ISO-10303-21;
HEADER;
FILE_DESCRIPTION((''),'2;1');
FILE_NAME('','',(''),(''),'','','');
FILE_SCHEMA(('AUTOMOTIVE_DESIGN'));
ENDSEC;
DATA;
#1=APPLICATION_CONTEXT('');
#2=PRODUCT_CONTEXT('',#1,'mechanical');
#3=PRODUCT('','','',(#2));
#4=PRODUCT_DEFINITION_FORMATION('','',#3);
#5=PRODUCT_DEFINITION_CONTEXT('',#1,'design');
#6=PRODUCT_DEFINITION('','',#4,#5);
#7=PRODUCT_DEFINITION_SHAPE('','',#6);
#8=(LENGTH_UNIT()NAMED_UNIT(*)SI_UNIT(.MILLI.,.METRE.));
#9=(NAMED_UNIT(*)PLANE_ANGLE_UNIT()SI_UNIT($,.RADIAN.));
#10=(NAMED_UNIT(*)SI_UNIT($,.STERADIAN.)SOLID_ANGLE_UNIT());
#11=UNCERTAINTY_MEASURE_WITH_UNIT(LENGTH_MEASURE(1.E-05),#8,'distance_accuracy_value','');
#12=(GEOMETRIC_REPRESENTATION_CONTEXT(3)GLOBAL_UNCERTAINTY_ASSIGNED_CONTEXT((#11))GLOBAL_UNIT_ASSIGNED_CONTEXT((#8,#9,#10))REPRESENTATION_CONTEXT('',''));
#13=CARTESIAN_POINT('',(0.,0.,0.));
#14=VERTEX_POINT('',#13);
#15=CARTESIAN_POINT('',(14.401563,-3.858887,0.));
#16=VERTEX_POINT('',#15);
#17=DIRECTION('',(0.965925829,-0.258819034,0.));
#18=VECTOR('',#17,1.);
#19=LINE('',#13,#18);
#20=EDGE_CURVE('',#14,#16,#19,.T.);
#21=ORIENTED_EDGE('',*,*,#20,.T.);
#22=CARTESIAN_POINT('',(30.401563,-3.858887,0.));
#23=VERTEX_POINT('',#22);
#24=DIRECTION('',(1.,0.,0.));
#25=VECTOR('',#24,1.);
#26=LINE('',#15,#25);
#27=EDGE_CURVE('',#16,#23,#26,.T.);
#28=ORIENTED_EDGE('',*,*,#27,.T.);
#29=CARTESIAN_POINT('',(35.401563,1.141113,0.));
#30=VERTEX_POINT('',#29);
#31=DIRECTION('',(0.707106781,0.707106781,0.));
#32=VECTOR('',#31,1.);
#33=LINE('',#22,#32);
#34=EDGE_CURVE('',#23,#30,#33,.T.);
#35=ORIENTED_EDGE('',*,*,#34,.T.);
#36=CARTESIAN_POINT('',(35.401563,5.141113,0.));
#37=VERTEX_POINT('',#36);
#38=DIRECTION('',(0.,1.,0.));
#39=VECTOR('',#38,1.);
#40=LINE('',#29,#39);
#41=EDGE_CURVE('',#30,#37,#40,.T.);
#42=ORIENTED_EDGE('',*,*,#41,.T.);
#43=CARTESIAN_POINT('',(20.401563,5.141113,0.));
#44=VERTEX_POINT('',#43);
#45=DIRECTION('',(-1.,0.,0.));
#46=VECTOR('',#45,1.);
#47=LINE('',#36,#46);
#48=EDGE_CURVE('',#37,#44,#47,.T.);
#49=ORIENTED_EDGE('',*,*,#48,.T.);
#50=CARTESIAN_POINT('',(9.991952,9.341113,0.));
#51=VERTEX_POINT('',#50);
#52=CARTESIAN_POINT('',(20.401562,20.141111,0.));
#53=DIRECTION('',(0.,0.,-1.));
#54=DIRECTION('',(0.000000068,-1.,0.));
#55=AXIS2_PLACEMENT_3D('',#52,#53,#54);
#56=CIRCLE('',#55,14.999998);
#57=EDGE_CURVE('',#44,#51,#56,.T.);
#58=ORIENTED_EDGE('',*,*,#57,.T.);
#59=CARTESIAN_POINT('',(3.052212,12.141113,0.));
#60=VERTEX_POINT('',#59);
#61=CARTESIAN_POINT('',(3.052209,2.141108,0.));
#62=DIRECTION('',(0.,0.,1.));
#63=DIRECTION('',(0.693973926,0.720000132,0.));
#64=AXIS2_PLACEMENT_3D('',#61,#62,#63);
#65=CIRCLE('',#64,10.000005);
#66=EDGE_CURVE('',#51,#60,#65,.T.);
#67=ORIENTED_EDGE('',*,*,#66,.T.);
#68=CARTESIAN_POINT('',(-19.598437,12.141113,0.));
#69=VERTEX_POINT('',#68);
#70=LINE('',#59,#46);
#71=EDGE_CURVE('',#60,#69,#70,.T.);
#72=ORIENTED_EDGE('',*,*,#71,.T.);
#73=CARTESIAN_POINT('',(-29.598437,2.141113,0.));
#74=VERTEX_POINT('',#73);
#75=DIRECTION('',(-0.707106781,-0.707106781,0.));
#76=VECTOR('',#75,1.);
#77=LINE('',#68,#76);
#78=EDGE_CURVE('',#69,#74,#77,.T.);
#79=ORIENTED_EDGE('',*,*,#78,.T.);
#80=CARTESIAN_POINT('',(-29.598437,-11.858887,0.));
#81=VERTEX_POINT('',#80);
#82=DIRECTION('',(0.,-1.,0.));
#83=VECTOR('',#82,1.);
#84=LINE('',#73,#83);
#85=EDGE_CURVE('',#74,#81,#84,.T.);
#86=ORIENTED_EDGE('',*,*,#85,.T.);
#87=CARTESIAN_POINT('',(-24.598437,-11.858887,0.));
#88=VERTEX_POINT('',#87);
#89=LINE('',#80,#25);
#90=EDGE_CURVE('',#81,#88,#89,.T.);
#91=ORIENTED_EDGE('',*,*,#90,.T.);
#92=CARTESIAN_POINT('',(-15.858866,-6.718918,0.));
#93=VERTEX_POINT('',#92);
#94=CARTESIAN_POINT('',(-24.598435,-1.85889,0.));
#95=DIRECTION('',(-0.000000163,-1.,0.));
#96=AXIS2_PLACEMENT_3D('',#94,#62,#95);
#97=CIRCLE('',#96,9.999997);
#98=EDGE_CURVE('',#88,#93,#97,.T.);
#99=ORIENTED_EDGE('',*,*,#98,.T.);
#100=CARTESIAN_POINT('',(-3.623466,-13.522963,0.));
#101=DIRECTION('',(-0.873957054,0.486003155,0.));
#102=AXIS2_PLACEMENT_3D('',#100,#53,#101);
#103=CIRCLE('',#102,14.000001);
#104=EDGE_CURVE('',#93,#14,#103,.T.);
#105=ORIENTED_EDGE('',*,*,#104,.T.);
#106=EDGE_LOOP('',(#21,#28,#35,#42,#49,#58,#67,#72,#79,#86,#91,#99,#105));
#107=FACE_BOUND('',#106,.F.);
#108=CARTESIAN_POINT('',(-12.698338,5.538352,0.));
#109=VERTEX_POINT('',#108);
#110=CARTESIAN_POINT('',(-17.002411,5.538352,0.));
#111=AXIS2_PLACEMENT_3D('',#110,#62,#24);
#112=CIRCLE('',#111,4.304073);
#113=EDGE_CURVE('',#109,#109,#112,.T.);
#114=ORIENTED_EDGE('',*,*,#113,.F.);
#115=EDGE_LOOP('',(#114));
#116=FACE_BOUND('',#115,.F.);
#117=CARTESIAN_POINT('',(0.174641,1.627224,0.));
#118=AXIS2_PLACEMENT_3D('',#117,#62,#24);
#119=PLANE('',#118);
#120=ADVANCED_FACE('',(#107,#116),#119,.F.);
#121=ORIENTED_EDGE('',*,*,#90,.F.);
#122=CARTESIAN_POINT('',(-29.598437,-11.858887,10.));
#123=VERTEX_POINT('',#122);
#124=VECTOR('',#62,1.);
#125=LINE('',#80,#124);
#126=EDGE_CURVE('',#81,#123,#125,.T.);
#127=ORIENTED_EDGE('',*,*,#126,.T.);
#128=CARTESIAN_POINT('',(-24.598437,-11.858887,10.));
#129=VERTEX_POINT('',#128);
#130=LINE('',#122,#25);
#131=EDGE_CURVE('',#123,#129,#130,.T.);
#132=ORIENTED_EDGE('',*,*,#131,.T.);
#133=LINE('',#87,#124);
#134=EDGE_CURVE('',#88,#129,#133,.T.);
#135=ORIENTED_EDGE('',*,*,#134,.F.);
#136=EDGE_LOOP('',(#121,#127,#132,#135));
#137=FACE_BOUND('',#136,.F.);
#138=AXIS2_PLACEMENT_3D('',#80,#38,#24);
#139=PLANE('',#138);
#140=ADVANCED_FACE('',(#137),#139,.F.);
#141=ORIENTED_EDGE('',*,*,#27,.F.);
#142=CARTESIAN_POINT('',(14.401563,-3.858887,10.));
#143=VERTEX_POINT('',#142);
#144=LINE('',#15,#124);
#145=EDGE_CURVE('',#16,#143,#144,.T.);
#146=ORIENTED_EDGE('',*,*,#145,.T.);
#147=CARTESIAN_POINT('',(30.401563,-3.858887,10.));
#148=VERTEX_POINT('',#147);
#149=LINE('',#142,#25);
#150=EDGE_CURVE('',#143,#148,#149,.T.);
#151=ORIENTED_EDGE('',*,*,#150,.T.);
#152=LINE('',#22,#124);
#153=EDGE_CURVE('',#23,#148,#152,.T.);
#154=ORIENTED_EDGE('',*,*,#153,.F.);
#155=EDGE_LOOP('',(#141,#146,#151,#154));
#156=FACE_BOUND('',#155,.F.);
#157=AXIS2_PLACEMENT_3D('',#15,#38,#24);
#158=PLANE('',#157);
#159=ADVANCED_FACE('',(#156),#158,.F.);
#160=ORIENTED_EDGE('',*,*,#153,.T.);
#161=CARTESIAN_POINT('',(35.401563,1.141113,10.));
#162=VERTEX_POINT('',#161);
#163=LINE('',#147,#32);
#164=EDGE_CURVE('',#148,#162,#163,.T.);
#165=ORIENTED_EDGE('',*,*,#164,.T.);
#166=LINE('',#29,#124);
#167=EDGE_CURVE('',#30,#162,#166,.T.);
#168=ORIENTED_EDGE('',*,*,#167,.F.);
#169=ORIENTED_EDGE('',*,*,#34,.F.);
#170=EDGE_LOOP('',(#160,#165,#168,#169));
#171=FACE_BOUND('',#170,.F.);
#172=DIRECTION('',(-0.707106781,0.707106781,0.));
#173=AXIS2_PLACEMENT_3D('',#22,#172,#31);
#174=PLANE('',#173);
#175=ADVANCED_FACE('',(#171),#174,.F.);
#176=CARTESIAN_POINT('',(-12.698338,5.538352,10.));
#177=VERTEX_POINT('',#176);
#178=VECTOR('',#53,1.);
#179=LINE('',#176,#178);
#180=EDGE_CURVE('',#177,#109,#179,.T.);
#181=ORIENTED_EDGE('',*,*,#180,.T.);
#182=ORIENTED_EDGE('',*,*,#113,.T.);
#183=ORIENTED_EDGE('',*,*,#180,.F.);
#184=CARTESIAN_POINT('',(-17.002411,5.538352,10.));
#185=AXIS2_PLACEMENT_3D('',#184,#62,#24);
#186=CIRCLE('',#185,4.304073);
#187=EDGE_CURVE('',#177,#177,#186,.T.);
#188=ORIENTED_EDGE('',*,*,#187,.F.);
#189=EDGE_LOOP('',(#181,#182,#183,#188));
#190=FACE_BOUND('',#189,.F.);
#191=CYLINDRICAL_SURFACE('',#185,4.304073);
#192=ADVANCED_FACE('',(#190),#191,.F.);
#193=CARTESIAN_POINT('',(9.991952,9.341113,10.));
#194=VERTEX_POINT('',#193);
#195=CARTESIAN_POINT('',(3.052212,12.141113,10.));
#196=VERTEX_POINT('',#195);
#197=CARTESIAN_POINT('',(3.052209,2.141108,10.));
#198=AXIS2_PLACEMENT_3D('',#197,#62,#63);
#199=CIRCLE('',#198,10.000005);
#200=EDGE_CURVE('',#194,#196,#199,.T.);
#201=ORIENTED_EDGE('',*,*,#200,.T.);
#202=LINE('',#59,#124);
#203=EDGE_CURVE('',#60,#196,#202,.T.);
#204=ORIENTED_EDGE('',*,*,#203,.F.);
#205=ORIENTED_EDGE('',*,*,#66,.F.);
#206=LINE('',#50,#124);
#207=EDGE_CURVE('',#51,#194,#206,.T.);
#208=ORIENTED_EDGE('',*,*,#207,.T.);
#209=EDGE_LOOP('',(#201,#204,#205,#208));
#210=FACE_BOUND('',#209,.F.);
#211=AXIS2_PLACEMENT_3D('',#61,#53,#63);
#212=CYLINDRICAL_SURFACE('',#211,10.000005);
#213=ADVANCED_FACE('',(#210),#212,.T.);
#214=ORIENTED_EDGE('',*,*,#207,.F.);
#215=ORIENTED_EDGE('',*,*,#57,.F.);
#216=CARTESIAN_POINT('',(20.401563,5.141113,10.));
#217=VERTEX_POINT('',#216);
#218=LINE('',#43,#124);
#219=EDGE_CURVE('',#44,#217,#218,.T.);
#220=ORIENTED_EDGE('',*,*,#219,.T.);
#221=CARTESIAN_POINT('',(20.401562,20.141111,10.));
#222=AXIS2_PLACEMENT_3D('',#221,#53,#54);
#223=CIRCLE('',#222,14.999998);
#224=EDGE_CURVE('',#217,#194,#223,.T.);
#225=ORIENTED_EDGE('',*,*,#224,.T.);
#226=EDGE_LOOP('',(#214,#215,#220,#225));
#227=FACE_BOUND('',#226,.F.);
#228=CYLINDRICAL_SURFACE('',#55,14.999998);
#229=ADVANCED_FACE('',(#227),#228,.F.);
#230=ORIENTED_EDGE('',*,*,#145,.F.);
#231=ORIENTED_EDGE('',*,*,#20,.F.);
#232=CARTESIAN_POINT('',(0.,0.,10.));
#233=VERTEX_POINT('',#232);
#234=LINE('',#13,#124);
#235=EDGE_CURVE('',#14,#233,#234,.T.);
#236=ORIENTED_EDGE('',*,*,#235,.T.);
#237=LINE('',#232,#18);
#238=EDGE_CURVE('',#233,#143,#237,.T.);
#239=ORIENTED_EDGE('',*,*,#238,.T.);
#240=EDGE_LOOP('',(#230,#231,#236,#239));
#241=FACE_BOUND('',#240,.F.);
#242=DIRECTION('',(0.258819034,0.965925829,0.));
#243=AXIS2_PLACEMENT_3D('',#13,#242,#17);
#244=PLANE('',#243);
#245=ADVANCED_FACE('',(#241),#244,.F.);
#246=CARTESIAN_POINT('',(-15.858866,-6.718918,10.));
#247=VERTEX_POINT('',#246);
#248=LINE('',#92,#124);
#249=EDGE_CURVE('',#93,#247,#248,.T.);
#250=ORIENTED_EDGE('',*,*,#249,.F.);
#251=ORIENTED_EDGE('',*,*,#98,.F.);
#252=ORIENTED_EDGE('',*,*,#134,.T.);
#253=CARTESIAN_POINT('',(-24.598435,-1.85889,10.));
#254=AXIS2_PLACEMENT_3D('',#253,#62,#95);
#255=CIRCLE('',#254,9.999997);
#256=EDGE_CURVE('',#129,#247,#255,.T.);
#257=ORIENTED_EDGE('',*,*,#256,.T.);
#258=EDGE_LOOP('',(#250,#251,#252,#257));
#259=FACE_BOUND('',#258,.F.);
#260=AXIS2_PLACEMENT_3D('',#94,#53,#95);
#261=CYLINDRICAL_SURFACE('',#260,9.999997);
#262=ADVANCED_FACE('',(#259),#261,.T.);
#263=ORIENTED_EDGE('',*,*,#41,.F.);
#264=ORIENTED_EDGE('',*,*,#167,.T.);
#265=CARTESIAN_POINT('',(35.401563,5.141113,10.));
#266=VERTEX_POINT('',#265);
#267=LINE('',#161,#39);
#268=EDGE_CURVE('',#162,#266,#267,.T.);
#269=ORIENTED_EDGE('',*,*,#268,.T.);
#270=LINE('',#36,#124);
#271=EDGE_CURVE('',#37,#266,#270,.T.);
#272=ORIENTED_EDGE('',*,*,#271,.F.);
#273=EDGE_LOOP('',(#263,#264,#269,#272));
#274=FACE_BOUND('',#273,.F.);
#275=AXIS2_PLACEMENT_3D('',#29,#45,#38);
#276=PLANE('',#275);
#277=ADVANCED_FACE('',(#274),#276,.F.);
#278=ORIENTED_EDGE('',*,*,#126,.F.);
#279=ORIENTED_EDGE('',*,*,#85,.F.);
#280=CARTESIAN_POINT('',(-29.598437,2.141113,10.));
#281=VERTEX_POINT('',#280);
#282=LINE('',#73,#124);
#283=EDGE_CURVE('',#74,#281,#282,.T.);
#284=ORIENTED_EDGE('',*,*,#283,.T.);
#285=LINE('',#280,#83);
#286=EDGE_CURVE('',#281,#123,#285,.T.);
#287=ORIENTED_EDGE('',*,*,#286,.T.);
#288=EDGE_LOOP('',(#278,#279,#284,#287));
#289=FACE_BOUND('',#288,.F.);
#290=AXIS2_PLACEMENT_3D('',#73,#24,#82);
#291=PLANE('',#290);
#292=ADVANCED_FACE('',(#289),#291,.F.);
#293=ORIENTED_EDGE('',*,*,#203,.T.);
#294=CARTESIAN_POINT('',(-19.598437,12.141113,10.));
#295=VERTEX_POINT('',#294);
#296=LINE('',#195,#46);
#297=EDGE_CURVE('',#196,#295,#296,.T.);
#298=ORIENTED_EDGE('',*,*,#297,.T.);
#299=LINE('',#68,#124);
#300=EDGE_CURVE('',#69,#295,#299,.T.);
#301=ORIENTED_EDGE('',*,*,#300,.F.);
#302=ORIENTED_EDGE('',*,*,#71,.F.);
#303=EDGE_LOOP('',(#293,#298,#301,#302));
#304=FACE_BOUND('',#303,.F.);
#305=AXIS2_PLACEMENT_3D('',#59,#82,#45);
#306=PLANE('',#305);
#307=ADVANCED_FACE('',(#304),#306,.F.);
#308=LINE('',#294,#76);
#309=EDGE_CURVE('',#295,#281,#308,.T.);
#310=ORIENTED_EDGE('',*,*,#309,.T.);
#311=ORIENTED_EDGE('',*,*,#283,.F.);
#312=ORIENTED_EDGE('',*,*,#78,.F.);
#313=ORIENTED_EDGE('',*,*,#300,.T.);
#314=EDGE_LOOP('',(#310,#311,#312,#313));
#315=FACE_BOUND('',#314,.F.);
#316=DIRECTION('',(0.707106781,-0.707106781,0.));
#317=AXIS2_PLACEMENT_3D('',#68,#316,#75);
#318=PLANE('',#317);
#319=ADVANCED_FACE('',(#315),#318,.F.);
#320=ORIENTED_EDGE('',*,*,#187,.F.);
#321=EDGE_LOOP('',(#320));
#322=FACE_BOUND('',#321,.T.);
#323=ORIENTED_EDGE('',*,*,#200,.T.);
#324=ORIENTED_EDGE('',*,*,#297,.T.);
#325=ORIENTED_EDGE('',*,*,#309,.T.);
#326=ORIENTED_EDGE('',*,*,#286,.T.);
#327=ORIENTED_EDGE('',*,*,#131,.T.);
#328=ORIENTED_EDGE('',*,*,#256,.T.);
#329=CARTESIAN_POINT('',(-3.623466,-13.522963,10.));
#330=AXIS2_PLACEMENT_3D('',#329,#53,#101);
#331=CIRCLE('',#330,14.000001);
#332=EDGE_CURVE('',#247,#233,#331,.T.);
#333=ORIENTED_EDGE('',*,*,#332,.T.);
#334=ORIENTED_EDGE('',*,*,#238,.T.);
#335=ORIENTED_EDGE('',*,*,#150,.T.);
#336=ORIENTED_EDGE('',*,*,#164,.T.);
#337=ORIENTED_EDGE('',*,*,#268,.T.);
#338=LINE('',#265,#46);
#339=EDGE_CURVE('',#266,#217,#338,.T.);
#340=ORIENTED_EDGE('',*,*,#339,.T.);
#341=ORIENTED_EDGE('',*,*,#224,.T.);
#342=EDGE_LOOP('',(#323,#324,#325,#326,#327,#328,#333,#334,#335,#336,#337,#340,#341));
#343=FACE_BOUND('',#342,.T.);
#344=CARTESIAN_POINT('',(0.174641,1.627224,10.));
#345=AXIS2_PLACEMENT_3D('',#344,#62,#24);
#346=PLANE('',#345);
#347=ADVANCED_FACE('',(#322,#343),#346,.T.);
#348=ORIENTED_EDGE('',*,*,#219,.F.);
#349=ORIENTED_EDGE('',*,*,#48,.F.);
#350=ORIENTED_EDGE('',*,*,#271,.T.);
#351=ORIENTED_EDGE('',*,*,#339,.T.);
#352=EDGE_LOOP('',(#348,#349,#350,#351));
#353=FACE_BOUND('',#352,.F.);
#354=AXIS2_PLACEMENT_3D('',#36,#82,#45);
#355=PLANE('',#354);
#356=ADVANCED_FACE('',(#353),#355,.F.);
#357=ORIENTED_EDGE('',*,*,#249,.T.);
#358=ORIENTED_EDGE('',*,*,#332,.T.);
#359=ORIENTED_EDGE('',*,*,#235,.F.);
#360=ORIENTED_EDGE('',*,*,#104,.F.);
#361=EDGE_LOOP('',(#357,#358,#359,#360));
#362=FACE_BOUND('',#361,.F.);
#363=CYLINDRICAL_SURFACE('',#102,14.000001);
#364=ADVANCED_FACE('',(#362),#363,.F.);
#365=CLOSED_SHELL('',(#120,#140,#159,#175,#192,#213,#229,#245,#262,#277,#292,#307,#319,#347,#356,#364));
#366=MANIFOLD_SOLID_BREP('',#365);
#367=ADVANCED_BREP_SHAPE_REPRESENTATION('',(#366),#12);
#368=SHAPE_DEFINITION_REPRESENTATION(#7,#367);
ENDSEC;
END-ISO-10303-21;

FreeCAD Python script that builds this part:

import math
import FreeCAD as App
import Part
import Sketcher

V = App.Vector
Q = App.Units.Quantity

doc = App.newDocument("Part")
body = doc.addObject("PartDesign::Body", "Body")

# Sketch on XY plane
sketch1 = body.newObject("Sketcher::SketchObject", "Sketch")
sketch1.AttachmentSupport = (doc.getObject("XY_Plane"), [""])
sketch1.MapMode = "FlatFace"
sketch1.addGeometry([
    Part.LineSegment(V(-29.6, 2.1, 0), V(-29.6, -11.9, 0)),  # 0
    Part.LineSegment(V(-29.6, -11.9, 0), V(-24.6, -11.9, 0)),  # 1
    Part.ArcOfCircle(Part.Circle(V(-24.6, -1.9, 0), V(0, 0, 1), 10), math.radians(-90), math.radians(-29)),  # 2
    Part.ArcOfCircle(Part.Circle(V(-3.6, -13.5, 0), V(0, 0, 1), 14), math.radians(75), math.radians(151)),  # 3
    Part.LineSegment(V(0, 0, 0), V(14.4, -3.9, 0)),  # 4
    Part.LineSegment(V(14.4, -3.9, 0), V(30.4, -3.9, 0)),  # 5
    Part.LineSegment(V(30.4, -3.9, 0), V(35.4, 1.1, 0)),  # 6
    Part.LineSegment(V(35.4, 1.1, 0), V(35.4, 5.1, 0)),  # 7
    Part.LineSegment(V(35.4, 5.1, 0), V(20.4, 5.1, 0)),  # 8
    Part.ArcOfCircle(Part.Circle(V(20.4, 20.1, 0), V(0, 0, 1), 15), math.radians(-134), math.radians(-90)),  # 9
    Part.ArcOfCircle(Part.Circle(V(3.1, 2.1, 0), V(0, 0, 1), 10), math.radians(46), math.radians(90)),  # 10
    Part.LineSegment(V(3.1, 12.1, 0), V(-19.6, 12.1, 0)),  # 11
    Part.LineSegment(V(-19.6, 12.1, 0), V(-29.6, 2.1, 0)),  # 12
], False)
sketch1.addConstraint([
    Sketcher.Constraint("Coincident", 0, 2, 1, 1),
    Sketcher.Constraint("Tangent", 1, 2, 2, 1),
    Sketcher.Constraint("Tangent", 2, 2, 3, 2),
    Sketcher.Constraint("Tangent", 3, 1, 4, 1),
    Sketcher.Constraint("Coincident", 4, 2, 5, 1),
    Sketcher.Constraint("Coincident", 5, 2, 6, 1),
    Sketcher.Constraint("Coincident", 6, 2, 7, 1),
    Sketcher.Constraint("Coincident", 7, 2, 8, 1),
    Sketcher.Constraint("Tangent", 8, 2, 9, 2),
    Sketcher.Constraint("Tangent", 9, 1, 10, 1),
    Sketcher.Constraint("Tangent", 10, 2, 11, 1),
    Sketcher.Constraint("Coincident", 11, 2, 12, 1),
    Sketcher.Constraint("Coincident", 12, 2, 0, 1),
    Sketcher.Constraint("Vertical", 0),
    Sketcher.Constraint("Horizontal", 1),
    Sketcher.Constraint("Horizontal", 5),
    Sketcher.Constraint("Vertical", 7),
    Sketcher.Constraint("Horizontal", 8),
    Sketcher.Constraint("Horizontal", 11),
    Sketcher.Constraint("Coincident", 3, 1, -1, 1),
    Sketcher.Constraint("Parallel", 6, 12),
    Sketcher.Constraint("Radius", 3, Q("14.000001 mm")),
    Sketcher.Constraint("DistanceX", 1, 1, 1, 2, Q("5 mm")),
    Sketcher.Constraint("DistanceX", 5, 1, 5, 2, Q("16 mm")),
    Sketcher.Constraint("DistanceX", 8, 2, 8, 1, Q("15 mm")),
    Sketcher.Constraint("DistanceY", 0, 2, 0, 1, Q("14 mm")),
    Sketcher.Constraint("DistanceY", 7, 1, 7, 2, Q("4 mm")),
    Sketcher.Constraint("Angle", 4, Q("-14.999999 deg")),
    Sketcher.Constraint("Angle", 6, Q("45 deg")),
    Sketcher.Constraint("DistanceY", 2, 3, 9, 3, Q("22 mm")),
    Sketcher.Constraint("DistanceX", 0, 2, 9, 3, Q("49.999999 mm")),
    Sketcher.Constraint("DistanceX", 4, 2, 9, 3, Q("5.999999 mm")),
    Sketcher.Constraint("DistanceY", 8, 2, 10, 2, Q("7 mm")),
    Sketcher.Constraint("DistanceX", 2, 3, 11, 2, Q("4.999998 mm")),
    Sketcher.Constraint("DistanceY", 8, 2, 9, 1, Q("4.2 mm")),
    Sketcher.Constraint("Radius", 2, Q("9.999997 mm")),
])
pad1 = body.newObject("PartDesign::Pad", "Pad")
pad1.Profile = sketch1
pad1.Length = 10

# Sketch on XY plane
sketch2 = body.newObject("Sketcher::SketchObject", "Sketch001")
sketch2.AttachmentSupport = (doc.getObject("XY_Plane"), [""])
sketch2.MapMode = "FlatFace"
sketch2.AttachmentOffset = App.Placement(V(0, 0, 10), App.Rotation())
sketch2.addGeometry(Part.Circle(V(-17, 5.5, 0), V(0, 0, 1), 4.3), False)
sketch2.addConstraint([
    Sketcher.Constraint("Diameter", 0, Q("8.608146 mm")),
    Sketcher.Constraint("DistanceX", 0, 3, -1, 1, Q("17.002411 mm")),
    Sketcher.Constraint("DistanceY", -1, 1, 0, 3, Q("5.538352 mm")),
])
pocket1 = body.newObject("PartDesign::Pocket", "Pocket")
pocket1.Profile = sketch2
pocket1.Length = 25

doc.recompute()
